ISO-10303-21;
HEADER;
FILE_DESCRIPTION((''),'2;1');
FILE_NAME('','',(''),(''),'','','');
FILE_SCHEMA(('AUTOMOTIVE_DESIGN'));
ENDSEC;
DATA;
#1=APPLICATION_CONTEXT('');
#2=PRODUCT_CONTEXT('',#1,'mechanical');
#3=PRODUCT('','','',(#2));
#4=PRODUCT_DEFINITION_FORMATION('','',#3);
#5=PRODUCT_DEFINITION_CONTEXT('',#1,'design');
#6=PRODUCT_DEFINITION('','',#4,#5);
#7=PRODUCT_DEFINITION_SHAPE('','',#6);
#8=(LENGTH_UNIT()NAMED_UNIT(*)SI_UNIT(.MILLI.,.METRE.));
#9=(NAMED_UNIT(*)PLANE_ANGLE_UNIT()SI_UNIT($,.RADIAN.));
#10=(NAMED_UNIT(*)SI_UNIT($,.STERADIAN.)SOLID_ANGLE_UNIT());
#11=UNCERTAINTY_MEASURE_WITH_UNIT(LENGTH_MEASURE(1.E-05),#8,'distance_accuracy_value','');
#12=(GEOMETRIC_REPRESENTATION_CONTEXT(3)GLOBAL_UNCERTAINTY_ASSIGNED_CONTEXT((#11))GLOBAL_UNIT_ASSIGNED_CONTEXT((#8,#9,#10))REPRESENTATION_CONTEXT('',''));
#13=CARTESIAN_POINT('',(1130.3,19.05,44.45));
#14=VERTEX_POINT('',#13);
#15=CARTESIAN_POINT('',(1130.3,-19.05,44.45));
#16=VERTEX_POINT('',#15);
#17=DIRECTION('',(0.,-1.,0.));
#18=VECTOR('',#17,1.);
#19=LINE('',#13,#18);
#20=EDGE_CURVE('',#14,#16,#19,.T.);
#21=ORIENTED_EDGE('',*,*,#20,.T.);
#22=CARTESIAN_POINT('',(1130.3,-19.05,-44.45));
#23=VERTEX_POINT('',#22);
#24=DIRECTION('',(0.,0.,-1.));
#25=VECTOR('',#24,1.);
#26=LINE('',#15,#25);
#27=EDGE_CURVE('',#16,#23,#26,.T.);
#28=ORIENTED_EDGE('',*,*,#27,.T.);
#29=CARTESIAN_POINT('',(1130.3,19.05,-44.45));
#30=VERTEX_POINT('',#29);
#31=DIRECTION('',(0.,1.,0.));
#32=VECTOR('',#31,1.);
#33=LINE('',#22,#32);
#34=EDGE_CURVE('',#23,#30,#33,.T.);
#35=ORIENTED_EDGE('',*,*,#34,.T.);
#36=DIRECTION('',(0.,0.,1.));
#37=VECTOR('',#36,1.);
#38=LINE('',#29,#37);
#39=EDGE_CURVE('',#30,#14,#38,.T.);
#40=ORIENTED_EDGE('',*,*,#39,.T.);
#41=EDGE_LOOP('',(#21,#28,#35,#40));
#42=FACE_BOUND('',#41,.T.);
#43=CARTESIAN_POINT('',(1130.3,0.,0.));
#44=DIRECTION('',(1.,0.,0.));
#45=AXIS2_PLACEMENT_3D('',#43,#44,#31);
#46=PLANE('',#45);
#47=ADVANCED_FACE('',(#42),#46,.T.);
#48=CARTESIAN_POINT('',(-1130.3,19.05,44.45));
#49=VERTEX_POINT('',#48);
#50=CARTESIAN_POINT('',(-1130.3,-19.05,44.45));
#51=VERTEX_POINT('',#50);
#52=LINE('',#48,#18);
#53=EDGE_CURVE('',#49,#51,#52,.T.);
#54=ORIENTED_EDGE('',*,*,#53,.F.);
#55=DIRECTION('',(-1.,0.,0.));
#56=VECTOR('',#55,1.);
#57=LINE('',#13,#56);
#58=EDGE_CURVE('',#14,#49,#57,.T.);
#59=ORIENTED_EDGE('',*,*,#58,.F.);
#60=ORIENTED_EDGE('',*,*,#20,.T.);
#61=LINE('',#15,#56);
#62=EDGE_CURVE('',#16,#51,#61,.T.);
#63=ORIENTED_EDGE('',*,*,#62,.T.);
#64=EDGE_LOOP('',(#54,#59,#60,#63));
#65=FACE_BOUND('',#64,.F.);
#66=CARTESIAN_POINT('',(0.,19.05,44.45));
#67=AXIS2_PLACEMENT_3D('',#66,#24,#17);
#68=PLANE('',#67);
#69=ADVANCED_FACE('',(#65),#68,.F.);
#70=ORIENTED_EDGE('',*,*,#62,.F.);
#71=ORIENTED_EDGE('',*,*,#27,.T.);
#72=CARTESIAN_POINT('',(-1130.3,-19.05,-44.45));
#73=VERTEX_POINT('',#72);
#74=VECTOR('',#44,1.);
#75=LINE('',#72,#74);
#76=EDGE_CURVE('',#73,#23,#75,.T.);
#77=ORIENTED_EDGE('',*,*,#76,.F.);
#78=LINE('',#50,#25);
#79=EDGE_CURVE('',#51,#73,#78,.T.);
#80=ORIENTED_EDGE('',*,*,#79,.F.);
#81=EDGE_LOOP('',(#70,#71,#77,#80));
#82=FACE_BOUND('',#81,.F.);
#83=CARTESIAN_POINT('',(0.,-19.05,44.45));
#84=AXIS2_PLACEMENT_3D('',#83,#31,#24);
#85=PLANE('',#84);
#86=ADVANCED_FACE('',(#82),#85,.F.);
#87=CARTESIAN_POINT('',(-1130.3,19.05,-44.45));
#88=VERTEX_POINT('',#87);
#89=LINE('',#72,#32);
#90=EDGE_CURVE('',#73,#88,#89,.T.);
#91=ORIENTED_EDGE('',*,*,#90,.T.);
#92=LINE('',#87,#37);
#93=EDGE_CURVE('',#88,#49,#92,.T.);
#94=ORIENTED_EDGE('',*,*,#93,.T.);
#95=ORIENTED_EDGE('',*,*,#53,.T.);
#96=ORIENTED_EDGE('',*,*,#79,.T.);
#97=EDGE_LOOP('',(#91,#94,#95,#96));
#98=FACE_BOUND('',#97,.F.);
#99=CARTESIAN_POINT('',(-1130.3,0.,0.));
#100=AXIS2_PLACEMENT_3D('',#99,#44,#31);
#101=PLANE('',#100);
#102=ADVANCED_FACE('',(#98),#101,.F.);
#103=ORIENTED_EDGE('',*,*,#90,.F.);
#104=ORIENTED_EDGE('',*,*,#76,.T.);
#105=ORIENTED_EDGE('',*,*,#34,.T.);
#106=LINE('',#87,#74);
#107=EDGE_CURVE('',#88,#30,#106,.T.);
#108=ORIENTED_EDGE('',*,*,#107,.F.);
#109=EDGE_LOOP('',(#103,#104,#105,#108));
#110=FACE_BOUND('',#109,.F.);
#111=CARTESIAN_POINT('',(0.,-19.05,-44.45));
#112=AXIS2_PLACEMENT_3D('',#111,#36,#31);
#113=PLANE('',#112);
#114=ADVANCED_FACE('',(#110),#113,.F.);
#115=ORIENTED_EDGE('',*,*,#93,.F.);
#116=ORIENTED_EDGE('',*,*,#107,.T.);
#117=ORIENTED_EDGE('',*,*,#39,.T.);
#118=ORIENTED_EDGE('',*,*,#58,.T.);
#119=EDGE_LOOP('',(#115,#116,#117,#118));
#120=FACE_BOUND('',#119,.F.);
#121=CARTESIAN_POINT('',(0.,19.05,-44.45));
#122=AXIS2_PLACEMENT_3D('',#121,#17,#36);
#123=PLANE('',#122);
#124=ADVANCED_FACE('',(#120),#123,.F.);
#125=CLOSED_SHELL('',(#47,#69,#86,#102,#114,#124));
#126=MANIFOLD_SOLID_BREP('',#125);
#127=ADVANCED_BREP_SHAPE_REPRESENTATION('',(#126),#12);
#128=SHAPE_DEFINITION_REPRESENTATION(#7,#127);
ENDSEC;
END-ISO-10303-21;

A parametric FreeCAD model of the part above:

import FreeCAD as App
import Part
import Sketcher
Q = App.Units.Quantity


def add_polygon(sketch, points):
    """Adds a closed chain of lines whose ends are joined by coincident constraints."""
    first, n = sketch.GeometryCount, len(points)
    for a, b in zip(points, points[1:] + points[:1]):
        sketch.addGeometry(Part.LineSegment(App.Vector(*a, 0), App.Vector(*b, 0)), False)
    for i in range(n):
        sketch.addConstraint(Sketcher.Constraint("Coincident", first + i, 2, first + (i + 1) % n, 1))

doc = App.newDocument("Part")
params = doc.addObject("Spreadsheet::Sheet", "Params")
for row, (alias, value) in enumerate([
    ("sketch1_width", "1.5 in"),
    ("sketch1_height", "3.5 in"),
    ("pad1_length", "89 in"),
], start=1):
    params.set(f"A{row}", alias)
    params.set(f"B{row}", "=" + value)
    params.setAlias(f"B{row}", alias)

body = doc.addObject("PartDesign::Body", "Body")

sketch1 = doc.addObject("Sketcher::SketchObject", "Sketch")
body.addObject(sketch1)
sketch1.AttachmentSupport = (doc.YZ_Plane, [""])
sketch1.MapMode = "FlatFace"
add_polygon(sketch1, [(-19, 44), (-19, -44), (19, -44), (19, 44)])
sketch1.addConstraint(Sketcher.Constraint("Vertical", 0))
sketch1.addConstraint(Sketcher.Constraint("Horizontal", 1))
sketch1.addConstraint(Sketcher.Constraint("Vertical", 2))
sketch1.addConstraint(Sketcher.Constraint("Horizontal", 3))
sketch1.addConstraint(Sketcher.Constraint("Symmetric", 0, 2, 2, 2, -1, 1))
sketch1.addConstraint(Sketcher.Constraint("DistanceX", 1, 1, 1, 2, Q("1.5 in")))
sketch1.addConstraint(Sketcher.Constraint("DistanceY", 0, 2, 0, 1, Q("3.5 in")))
sketch1.setExpression("Constraints[9]", "Params.sketch1_width")
sketch1.setExpression("Constraints[10]", "Params.sketch1_height")
pad1 = doc.addObject("PartDesign::Pad", "Pad")
body.addObject(pad1)
pad1.Profile = sketch1
pad1.setExpression("Length", "Params.pad1_length")
pad1.Midplane = True

doc.recompute()
